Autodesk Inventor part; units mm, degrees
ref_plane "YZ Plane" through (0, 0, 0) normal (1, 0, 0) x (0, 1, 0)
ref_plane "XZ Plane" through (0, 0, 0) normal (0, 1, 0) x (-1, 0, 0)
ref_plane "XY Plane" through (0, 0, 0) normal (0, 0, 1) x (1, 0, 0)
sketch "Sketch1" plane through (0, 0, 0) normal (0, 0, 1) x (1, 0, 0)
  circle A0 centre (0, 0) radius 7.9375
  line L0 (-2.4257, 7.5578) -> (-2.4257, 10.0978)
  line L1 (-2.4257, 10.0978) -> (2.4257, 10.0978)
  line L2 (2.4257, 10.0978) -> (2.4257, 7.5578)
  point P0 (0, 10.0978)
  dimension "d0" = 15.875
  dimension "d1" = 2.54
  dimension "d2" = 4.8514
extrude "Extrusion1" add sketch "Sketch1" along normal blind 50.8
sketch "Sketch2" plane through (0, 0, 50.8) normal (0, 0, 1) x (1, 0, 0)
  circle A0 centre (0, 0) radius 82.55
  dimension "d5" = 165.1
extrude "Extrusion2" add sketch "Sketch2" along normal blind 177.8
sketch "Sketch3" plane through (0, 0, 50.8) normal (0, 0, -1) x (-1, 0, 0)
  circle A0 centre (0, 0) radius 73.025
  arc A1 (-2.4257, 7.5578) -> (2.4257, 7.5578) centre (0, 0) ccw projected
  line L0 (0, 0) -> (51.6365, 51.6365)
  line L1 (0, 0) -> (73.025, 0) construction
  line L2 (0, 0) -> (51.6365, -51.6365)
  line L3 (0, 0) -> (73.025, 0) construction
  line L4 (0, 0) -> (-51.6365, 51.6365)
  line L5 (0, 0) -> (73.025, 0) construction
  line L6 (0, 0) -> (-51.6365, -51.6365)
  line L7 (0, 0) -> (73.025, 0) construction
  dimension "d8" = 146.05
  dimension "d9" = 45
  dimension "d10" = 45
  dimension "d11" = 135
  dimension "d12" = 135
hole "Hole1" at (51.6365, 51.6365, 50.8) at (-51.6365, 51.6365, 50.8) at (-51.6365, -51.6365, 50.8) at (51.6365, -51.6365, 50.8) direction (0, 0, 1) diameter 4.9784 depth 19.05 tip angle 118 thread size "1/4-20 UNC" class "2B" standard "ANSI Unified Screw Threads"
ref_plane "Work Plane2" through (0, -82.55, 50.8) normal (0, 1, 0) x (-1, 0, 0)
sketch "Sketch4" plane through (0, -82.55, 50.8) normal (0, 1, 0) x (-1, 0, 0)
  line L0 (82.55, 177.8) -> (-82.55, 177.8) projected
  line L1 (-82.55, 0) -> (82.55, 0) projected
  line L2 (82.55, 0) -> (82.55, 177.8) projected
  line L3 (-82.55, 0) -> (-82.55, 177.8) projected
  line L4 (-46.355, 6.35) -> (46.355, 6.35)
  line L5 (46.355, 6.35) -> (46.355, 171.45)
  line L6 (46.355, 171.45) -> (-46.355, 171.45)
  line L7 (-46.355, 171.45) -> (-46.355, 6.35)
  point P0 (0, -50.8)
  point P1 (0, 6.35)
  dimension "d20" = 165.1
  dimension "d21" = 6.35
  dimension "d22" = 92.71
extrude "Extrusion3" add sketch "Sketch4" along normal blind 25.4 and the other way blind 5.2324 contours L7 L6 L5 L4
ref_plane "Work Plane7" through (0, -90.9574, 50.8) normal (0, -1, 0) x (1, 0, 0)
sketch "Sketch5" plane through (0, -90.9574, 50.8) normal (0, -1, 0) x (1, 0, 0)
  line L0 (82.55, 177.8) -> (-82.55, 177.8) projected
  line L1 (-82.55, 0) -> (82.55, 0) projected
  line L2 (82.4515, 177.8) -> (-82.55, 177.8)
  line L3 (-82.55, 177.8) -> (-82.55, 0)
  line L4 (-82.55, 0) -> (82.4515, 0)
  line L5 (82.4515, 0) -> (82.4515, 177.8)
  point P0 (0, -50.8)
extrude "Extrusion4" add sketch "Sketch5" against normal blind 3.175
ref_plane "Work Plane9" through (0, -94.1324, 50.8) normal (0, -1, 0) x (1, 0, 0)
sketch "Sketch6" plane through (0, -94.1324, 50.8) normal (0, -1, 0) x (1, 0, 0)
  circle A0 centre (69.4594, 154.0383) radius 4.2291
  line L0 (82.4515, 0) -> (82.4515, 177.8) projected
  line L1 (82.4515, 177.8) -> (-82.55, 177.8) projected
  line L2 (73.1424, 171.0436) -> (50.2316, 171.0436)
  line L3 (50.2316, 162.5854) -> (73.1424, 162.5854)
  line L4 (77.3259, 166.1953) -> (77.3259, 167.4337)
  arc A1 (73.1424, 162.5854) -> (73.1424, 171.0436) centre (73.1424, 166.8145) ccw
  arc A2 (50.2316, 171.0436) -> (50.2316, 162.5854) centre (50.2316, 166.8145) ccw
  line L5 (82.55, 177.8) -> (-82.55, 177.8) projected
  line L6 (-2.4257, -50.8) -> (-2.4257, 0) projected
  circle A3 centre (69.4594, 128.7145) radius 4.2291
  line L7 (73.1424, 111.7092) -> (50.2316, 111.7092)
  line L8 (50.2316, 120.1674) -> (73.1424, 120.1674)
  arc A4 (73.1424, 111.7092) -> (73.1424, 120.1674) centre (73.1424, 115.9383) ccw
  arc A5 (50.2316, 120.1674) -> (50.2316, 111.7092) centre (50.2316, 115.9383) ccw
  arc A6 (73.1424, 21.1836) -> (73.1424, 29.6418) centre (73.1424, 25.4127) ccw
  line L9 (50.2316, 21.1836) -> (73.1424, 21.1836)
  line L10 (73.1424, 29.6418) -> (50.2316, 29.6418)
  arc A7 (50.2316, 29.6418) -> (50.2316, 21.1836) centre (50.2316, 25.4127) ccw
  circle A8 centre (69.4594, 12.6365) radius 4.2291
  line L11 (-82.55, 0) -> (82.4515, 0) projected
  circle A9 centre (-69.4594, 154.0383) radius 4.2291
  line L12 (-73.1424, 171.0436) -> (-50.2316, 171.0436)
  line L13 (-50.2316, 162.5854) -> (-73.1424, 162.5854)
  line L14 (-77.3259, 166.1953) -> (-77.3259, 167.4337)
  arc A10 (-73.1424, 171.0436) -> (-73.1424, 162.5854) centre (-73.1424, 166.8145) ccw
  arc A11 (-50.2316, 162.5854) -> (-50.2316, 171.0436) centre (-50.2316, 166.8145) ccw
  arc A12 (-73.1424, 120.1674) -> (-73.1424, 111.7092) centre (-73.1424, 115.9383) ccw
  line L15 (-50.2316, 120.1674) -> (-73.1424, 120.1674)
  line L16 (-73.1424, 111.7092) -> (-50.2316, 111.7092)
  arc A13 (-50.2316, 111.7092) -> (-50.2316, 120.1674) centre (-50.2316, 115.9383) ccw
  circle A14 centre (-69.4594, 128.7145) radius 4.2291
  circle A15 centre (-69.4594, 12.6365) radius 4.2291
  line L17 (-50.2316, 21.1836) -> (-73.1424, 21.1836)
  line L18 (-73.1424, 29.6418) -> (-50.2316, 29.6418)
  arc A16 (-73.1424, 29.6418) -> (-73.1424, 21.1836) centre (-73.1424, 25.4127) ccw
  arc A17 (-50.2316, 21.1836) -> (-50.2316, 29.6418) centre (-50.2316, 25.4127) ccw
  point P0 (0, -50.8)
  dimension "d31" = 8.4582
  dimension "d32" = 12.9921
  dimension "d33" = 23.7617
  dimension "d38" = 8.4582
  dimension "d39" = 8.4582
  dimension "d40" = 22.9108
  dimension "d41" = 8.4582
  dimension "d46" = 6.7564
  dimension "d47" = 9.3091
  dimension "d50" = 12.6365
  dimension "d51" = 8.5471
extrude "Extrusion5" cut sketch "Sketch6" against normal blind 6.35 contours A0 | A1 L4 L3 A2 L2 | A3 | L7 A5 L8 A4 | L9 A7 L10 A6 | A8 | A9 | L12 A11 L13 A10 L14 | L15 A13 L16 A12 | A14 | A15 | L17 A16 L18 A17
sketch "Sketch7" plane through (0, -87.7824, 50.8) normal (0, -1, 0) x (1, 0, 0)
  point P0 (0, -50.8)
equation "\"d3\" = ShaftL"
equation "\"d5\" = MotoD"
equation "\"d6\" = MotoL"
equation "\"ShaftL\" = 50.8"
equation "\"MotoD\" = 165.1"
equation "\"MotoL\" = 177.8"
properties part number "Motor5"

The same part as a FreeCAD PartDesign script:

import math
import FreeCAD as App
import Part
import Sketcher

V = App.Vector
Q = App.Units.Quantity


def add_polygon(sketch, points):
    """Adds a closed chain of lines whose ends are joined by coincident constraints."""
    first, n = sketch.GeometryCount, len(points)
    for a, b in zip(points, points[1:] + points[:1]):
        sketch.addGeometry(Part.LineSegment(App.Vector(*a, 0), App.Vector(*b, 0)), False)
    for i in range(n):
        sketch.addConstraint(Sketcher.Constraint("Coincident", first + i, 2, first + (i + 1) % n, 1))

doc = App.newDocument("Part")
body = doc.addObject("PartDesign::Body", "Body")

# Sketch on XY plane
sketch1 = doc.addObject("Sketcher::SketchObject", "Sketch")
body.addObject(sketch1)
sketch1.AttachmentSupport = (doc.XY_Plane, [""])
sketch1.MapMode = "FlatFace"
sketch1.addGeometry([
    Part.ArcOfCircle(Part.Circle(V(0, 0, 0), V(0, 0, 1), 7.9), math.radians(108), math.radians(432)),
    Part.LineSegment(V(2.4, 7.6, 0), V(2.4, 10.1, 0)),
    Part.LineSegment(V(2.4, 10.1, 0), V(-2.4, 10.1, 0)),
    Part.LineSegment(V(-2.4, 10.1, 0), V(-2.4, 7.6, 0)),
], False)
sketch1.addConstraint([
    Sketcher.Constraint("Coincident", 0, 2, 1, 1),
    Sketcher.Constraint("Coincident", 1, 2, 2, 1),
    Sketcher.Constraint("Coincident", 2, 2, 3, 1),
    Sketcher.Constraint("Coincident", 3, 2, 0, 1),
    Sketcher.Constraint("Vertical", 1),
    Sketcher.Constraint("Horizontal", 2),
    Sketcher.Constraint("Vertical", 3),
    Sketcher.Constraint("Coincident", 0, 3, -1, 1),
    Sketcher.Constraint("Horizontal", 0, 2, 3, 2),
    Sketcher.Constraint("DistanceY", 1, 1, 1, 2, Q("0.1 in")),
    Sketcher.Constraint("Radius", 0, Q("0.3125 in")),
    Sketcher.Constraint("DistanceX", 2, 2, 2, 1, Q("0.191 in")),
])
pad1 = doc.addObject("PartDesign::Pad", "Pad")
body.addObject(pad1)
pad1.Profile = sketch1
pad1.Length = Q("2 in")

# Sketch on XY plane
sketch2 = doc.addObject("Sketcher::SketchObject", "Sketch001")
body.addObject(sketch2)
sketch2.AttachmentSupport = (doc.XY_Plane, [""])
sketch2.MapMode = "FlatFace"
sketch2.AttachmentOffset = App.Placement(V(0, 0, 2 * 25.4), App.Rotation())
sketch2.addGeometry(Part.Circle(V(0, 0, 0), V(0, 0, 1), 83), False)
sketch2.addConstraint([
    Sketcher.Constraint("Coincident", 0, 3, -1, 1),
    Sketcher.Constraint("Diameter", 0, Q("6.5 in")),
])
pad2 = doc.addObject("PartDesign::Pad", "Pad001")
body.addObject(pad2)
pad2.Profile = sketch2
pad2.Length = Q("7 in")

# Sketch on XY plane
sketch3 = doc.addObject("Sketcher::SketchObject", "Sketch002")
body.addObject(sketch3)
sketch3.AttachmentSupport = (doc.XY_Plane, [""])
sketch3.MapMode = "FlatFace"
sketch3.AttachmentOffset = App.Placement(V(0, 0, 2 * 25.4), App.Rotation())
sketch3.addGeometry([
    Part.Circle(V(51.6, 51.6, 0), V(0, 0, 1), 2.5),
    Part.Circle(V(-51.6, 51.6, 0), V(0, 0, 1), 2.5),
    Part.Circle(V(-51.6, -51.6, 0), V(0, 0, 1), 2.5),
    Part.Circle(V(51.6, -51.6, 0), V(0, 0, 1), 2.5),
], False)
sketch3.addConstraint([
    Sketcher.Constraint("Equal", 0, 1),
    Sketcher.Constraint("Equal", 1, 2),
    Sketcher.Constraint("Equal", 2, 3),
    Sketcher.Constraint("Symmetric", 0, 3, 2, 3, -1, 1),
    Sketcher.Constraint("Symmetric", 1, 3, 3, 3, -1, 1),
    Sketcher.Constraint("Symmetric", 0, 3, 1, 3, -2),
    Sketcher.Constraint("Diameter", 0, Q("0.196 in")),
    Sketcher.Constraint("DistanceX", -1, 1, 0, 3, 51.6365),
    Sketcher.Constraint("DistanceY", -1, 1, 0, 3, 51.6365),
])
doc.recompute()
hole = doc.addObject("PartDesign::Hole", "Hole")
body.addObject(hole)
hole.Profile = sketch3
hole.ThreadType = "None"
hole.Diameter = Q("0.196 in")
hole.DepthType = "Dimension"
hole.Depth = Q("0.75 in")
hole.DrillPoint = "Angled"
hole.DrillPointAngle = 118
hole.Reversed = True

# Sketch on XZ plane
sketch4 = doc.addObject("Sketcher::SketchObject", "Sketch003")
body.addObject(sketch4)
sketch4.AttachmentSupport = (doc.XZ_Plane, [""])
sketch4.MapMode = "FlatFace"
sketch4.AttachmentOffset = App.Placement(V(0, 0, 3.25 * 25.4), App.Rotation())
add_polygon(sketch4, [(46, 222), (46, 57), (-46, 57), (-46, 222)])  # lines 0-3
sketch4.addConstraint([
    Sketcher.Constraint("Vertical", 0),
    Sketcher.Constraint("Horizontal", 1),
    Sketcher.Constraint("Vertical", 2),
    Sketcher.Constraint("Horizontal", 3),
    Sketcher.Constraint("DistanceY", 0, 2, 0, 1, Q("6.5 in")),
    Sketcher.Constraint("DistanceX", 1, 2, 1, 1, Q("3.65 in")),
    Sketcher.Constraint("DistanceY", -1, 1, 0, 2, Q("2.25 in")),
    Sketcher.Constraint("DistanceX", -1, 1, 0, 2, Q("1.825 in")),
])
pad3 = doc.addObject("PartDesign::Pad", "Pad002")
body.addObject(pad3)
pad3.Profile = sketch4
pad3.Type = "TwoLengths"
pad3.Length = Q("1 in")
pad3.Length2 = Q("0.206 in")
pad3.Reversed = True

# Sketch on XZ plane
sketch5 = doc.addObject("Sketcher::SketchObject", "Sketch004")
body.addObject(sketch5)
sketch5.AttachmentSupport = (doc.XZ_Plane, [""])
sketch5.MapMode = "FlatFace"
sketch5.AttachmentOffset = App.Placement(V(0, 0, 3.581 * 25.4), App.Rotation())
add_polygon(sketch5, [(82, 51), (82, 229), (-83, 229), (-83, 51)])  # lines 0-3
sketch5.addConstraint([
    Sketcher.Constraint("Vertical", 0),
    Sketcher.Constraint("Horizontal", 1),
    Sketcher.Constraint("Vertical", 2),
    Sketcher.Constraint("Horizontal", 3),
    Sketcher.Constraint("DistanceY", 0, 1, 0, 2, Q("7 in")),
    Sketcher.Constraint("DistanceY", -1, 1, 0, 2, Q("9 in")),
    Sketcher.Constraint("DistanceX", 1, 2, -1, 1, Q("3.25 in")),
    Sketcher.Constraint("DistanceX", 1, 2, 1, 1, 165.0015),
])
pad4 = doc.addObject("PartDesign::Pad", "Pad003")
body.addObject(pad4)
pad4.Profile = sketch5
pad4.Length = Q("0.125 in")
pad4.Reversed = True

# Sketch on XZ plane
sketch6 = doc.addObject("Sketcher::SketchObject", "Sketch005")
body.addObject(sketch6)
sketch6.AttachmentSupport = (doc.XZ_Plane, [""])
sketch6.MapMode = "FlatFace"
sketch6.AttachmentOffset = App.Placement(V(0, 0, 3.706 * 25.4), App.Rotation())
sketch6.addGeometry([
    Part.Circle(V(69.5, 204.8, 0), V(0, 0, 1), 4.2),  # 0
    Part.ArcOfCircle(Part.Circle(V(73.1, 217.6, 0), V(0, 0, 1), 4.2), math.radians(8), math.radians(90)),  # 1
    Part.LineSegment(V(73.1, 221.8, 0), V(50.2, 221.8, 0)),  # 2
    Part.ArcOfCircle(Part.Circle(V(50.2, 217.6, 0), V(0, 0, 1), 4.2), math.radians(90), math.radians(270)),  # 3
    Part.LineSegment(V(50.2, 213.4, 0), V(73.1, 213.4, 0)),  # 4
    Part.ArcOfCircle(Part.Circle(V(73.1, 217.6, 0), V(0, 0, 1), 4.2), math.radians(-90), math.radians(-8)),  # 5
    Part.LineSegment(V(77.3, 217, 0), V(77.3, 218.2, 0)),  # 6
    Part.Circle(V(69.5, 179.5, 0), V(0, 0, 1), 4.2),  # 7
    Part.LineSegment(V(50.2, 162.5, 0), V(73.1, 162.5, 0)),  # 8
    Part.ArcOfCircle(Part.Circle(V(73.1, 166.7, 0), V(0, 0, 1), 4.2), math.radians(-90), math.radians(90)),  # 9
    Part.LineSegment(V(73.1, 171, 0), V(50.2, 171, 0)),  # 10
    Part.ArcOfCircle(Part.Circle(V(50.2, 166.7, 0), V(0, 0, 1), 4.2), math.radians(90), math.radians(270)),  # 11
    Part.LineSegment(V(50.2, 72, 0), V(73.1, 72, 0)),  # 12
    Part.ArcOfCircle(Part.Circle(V(73.1, 76.2, 0), V(0, 0, 1), 4.2), math.radians(-90), math.radians(90)),  # 13
    Part.LineSegment(V(73.1, 80.4, 0), V(50.2, 80.4, 0)),  # 14
    Part.ArcOfCircle(Part.Circle(V(50.2, 76.2, 0), V(0, 0, 1), 4.2), math.radians(90), math.radians(270)),  # 15
    Part.Circle(V(69.5, 63.4, 0), V(0, 0, 1), 4.2),  # 16
    Part.Circle(V(-69.5, 204.8, 0), V(0, 0, 1), 4.2),  # 17
    Part.LineSegment(V(-50.2, 221.8, 0), V(-73.1, 221.8, 0)),  # 18
    Part.ArcOfCircle(Part.Circle(V(-73.1, 217.6, 0), V(0, 0, 1), 4.2), math.radians(90), math.radians(172)),  # 19
    Part.LineSegment(V(-77.3, 218.2, 0), V(-77.3, 217, 0)),  # 20
    Part.ArcOfCircle(Part.Circle(V(-73.1, 217.6, 0), V(0, 0, 1), 4.2), math.radians(-172), math.radians(-90)),  # 21
    Part.LineSegment(V(-73.1, 213.4, 0), V(-50.2, 213.4, 0)),  # 22
    Part.ArcOfCircle(Part.Circle(V(-50.2, 217.6, 0), V(0, 0, 1), 4.2), math.radians(-90), math.radians(90)),  # 23
    Part.LineSegment(V(-50.2, 171, 0), V(-73.1, 171, 0)),  # 24
    Part.ArcOfCircle(Part.Circle(V(-73.1, 166.7, 0), V(0, 0, 1), 4.2), math.radians(90), math.radians(270)),  # 25
    Part.LineSegment(V(-73.1, 162.5, 0), V(-50.2, 162.5, 0)),  # 26
    Part.ArcOfCircle(Part.Circle(V(-50.2, 166.7, 0), V(0, 0, 1), 4.2), math.radians(-90), math.radians(90)),  # 27
    Part.Circle(V(-69.5, 179.5, 0), V(0, 0, 1), 4.2),  # 28
    Part.Circle(V(-69.5, 63.4, 0), V(0, 0, 1), 4.2),  # 29
    Part.LineSegment(V(-73.1, 72, 0), V(-50.2, 72, 0)),  # 30
    Part.ArcOfCircle(Part.Circle(V(-50.2, 76.2, 0), V(0, 0, 1), 4.2), math.radians(-90), math.radians(90)),  # 31
    Part.LineSegment(V(-50.2, 80.4, 0), V(-73.1, 80.4, 0)),  # 32
    Part.ArcOfCircle(Part.Circle(V(-73.1, 76.2, 0), V(0, 0, 1), 4.2), math.radians(90), math.radians(270)),  # 33
], False)
sketch6.addConstraint([
    Sketcher.Constraint("Tangent", 1, 2, 2, 1),
    Sketcher.Constraint("Tangent", 2, 2, 3, 1),
    Sketcher.Constraint("Tangent", 3, 2, 4, 1),
    Sketcher.Constraint("Tangent", 4, 2, 5, 1),
    Sketcher.Constraint("Coincident", 5, 2, 6, 1),
    Sketcher.Constraint("Coincident", 6, 2, 1, 1),
    Sketcher.Constraint("Tangent", 8, 2, 9, 1),
    Sketcher.Constraint("Tangent", 9, 2, 10, 1),
    Sketcher.Constraint("Tangent", 10, 2, 11, 1),
    Sketcher.Constraint("Tangent", 11, 2, 8, 1),
    Sketcher.Constraint("Tangent", 12, 2, 13, 1),
    Sketcher.Constraint("Tangent", 13, 2, 14, 1),
    Sketcher.Constraint("Tangent", 14, 2, 15, 1),
    Sketcher.Constraint("Tangent", 15, 2, 12, 1),
    Sketcher.Constraint("Tangent", 18, 2, 19, 1),
    Sketcher.Constraint("Coincident", 19, 2, 20, 1),
    Sketcher.Constraint("Coincident", 20, 2, 21, 1),
    Sketcher.Constraint("Tangent", 21, 2, 22, 1),
    Sketcher.Constraint("Tangent", 22, 2, 23, 1),
    Sketcher.Constraint("Tangent", 23, 2, 18, 1),
    Sketcher.Constraint("Tangent", 24, 2, 25, 1),
    Sketcher.Constraint("Tangent", 25, 2, 26, 1),
    Sketcher.Constraint("Tangent", 26, 2, 27, 1),
    Sketcher.Constraint("Tangent", 27, 2, 24, 1),
    Sketcher.Constraint("Tangent", 30, 2, 31, 1),
    Sketcher.Constraint("Tangent", 31, 2, 32, 1),
    Sketcher.Constraint("Tangent", 32, 2, 33, 1),
    Sketcher.Constraint("Tangent", 33, 2, 30, 1),
    Sketcher.Constraint("Horizontal", 2),
    Sketcher.Constraint("Horizontal", 4),
    Sketcher.Constraint("Vertical", 6),
    Sketcher.Constraint("Horizontal", 8),
    Sketcher.Constraint("Horizontal", 10),
    Sketcher.Constraint("Horizontal", 12),
    Sketcher.Constraint("Horizontal", 14),
    Sketcher.Constraint("Horizontal", 18),
    Sketcher.Constraint("Vertical", 20),
    Sketcher.Constraint("Horizontal", 22),
    Sketcher.Constraint("Horizontal", 24),
    Sketcher.Constraint("Horizontal", 26),
    Sketcher.Constraint("Horizontal", 30),
    Sketcher.Constraint("Horizontal", 32),
    Sketcher.Constraint("Coincident", 5, 3, 1, 3),
    Sketcher.Constraint("Coincident", 21, 3, 19, 3),
    Sketcher.Constraint("Equal", 0, 1),
    Sketcher.Constraint("Equal", 1, 3),
    Sketcher.Constraint("Equal", 5, 7),
    Sketcher.Constraint("Equal", 7, 9),
    Sketcher.Constraint("Equal", 11, 13),
    Sketcher.Constraint("Equal", 15, 16),
    Sketcher.Constraint("Equal", 16, 17),
    Sketcher.Constraint("Equal", 17, 19),
    Sketcher.Constraint("Equal", 19, 21),
    Sketcher.Constraint("Equal", 23, 25),
    Sketcher.Constraint("Equal", 27, 28),
    Sketcher.Constraint("Equal", 28, 29),
    Sketcher.Constraint("Equal", 29, 31),
    Sketcher.Constraint("Symmetric", 0, 3, 17, 3, -2),
    Sketcher.Constraint("Symmetric", 1, 3, 19, 3, -2),
    Sketcher.Constraint("Symmetric", 9, 3, 25, 3, -2),
    Sketcher.Constraint("Symmetric", 7, 3, 28, 3, -2),
    Sketcher.Constraint("Symmetric", 16, 3, 29, 3, -2),
    Sketcher.Constraint("Symmetric", 15, 3, 31, 3, -2),
    Sketcher.Constraint("Horizontal", 6, 2, 19, 2),
    Sketcher.Constraint("Vertical", 0, 3, 7, 3),
    Sketcher.Constraint("Vertical", 5, 3, 9, 3),
    Sketcher.Constraint("Vertical", 3, 3, 11, 3),
    Sketcher.Constraint("Vertical", 9, 3, 13, 3),
    Sketcher.Constraint("Vertical", 11, 3, 15, 3),
    Sketcher.Constraint("Vertical", 7, 3, 16, 3),
    Sketcher.Constraint("Vertical", 23, 3, 27, 3),
    Sketcher.Constraint("Vertical", 27, 3, 31, 3),
    Sketcher.Constraint("Vertical", 25, 3, 33, 3),
    Sketcher.Constraint("Diameter", 0, Q("0.333 in")),
    Sketcher.Constraint("DistanceX", 2, 2, 2, 1, Q("0.902 in")),
    Sketcher.Constraint("DistanceY", 7, 3, 1, 3, Q("1.5 in")),
    Sketcher.Constraint("DistanceY", 9, 3, 0, 3, Q("1.5 in")),
    Sketcher.Constraint("DistanceY", 0, 3, 3, 2, Q("0.3365 in")),
    Sketcher.Constraint("DistanceY", 16, 3, 12, 2, Q("0.3365 in")),
    Sketcher.Constraint("DistanceY", 16, 3, 7, 3, Q("4.57 in")),
    Sketcher.Constraint("DistanceY", -1, 1, 1, 2, Q("8.734 in")),
    Sketcher.Constraint("DistanceX", 0, 3, 1, 3, Q("0.145 in")),
    Sketcher.Constraint("DistanceY", 6, 1, 6, 2, 1.2384),
    Sketcher.Constraint("DistanceX", -1, 1, 0, 3, 69.4594),
])
pocket1 = doc.addObject("PartDesign::Pocket", "Pocket")
body.addObject(pocket1)
pocket1.Profile = sketch6
pocket1.Length = Q("0.25 in")

doc.recompute()
